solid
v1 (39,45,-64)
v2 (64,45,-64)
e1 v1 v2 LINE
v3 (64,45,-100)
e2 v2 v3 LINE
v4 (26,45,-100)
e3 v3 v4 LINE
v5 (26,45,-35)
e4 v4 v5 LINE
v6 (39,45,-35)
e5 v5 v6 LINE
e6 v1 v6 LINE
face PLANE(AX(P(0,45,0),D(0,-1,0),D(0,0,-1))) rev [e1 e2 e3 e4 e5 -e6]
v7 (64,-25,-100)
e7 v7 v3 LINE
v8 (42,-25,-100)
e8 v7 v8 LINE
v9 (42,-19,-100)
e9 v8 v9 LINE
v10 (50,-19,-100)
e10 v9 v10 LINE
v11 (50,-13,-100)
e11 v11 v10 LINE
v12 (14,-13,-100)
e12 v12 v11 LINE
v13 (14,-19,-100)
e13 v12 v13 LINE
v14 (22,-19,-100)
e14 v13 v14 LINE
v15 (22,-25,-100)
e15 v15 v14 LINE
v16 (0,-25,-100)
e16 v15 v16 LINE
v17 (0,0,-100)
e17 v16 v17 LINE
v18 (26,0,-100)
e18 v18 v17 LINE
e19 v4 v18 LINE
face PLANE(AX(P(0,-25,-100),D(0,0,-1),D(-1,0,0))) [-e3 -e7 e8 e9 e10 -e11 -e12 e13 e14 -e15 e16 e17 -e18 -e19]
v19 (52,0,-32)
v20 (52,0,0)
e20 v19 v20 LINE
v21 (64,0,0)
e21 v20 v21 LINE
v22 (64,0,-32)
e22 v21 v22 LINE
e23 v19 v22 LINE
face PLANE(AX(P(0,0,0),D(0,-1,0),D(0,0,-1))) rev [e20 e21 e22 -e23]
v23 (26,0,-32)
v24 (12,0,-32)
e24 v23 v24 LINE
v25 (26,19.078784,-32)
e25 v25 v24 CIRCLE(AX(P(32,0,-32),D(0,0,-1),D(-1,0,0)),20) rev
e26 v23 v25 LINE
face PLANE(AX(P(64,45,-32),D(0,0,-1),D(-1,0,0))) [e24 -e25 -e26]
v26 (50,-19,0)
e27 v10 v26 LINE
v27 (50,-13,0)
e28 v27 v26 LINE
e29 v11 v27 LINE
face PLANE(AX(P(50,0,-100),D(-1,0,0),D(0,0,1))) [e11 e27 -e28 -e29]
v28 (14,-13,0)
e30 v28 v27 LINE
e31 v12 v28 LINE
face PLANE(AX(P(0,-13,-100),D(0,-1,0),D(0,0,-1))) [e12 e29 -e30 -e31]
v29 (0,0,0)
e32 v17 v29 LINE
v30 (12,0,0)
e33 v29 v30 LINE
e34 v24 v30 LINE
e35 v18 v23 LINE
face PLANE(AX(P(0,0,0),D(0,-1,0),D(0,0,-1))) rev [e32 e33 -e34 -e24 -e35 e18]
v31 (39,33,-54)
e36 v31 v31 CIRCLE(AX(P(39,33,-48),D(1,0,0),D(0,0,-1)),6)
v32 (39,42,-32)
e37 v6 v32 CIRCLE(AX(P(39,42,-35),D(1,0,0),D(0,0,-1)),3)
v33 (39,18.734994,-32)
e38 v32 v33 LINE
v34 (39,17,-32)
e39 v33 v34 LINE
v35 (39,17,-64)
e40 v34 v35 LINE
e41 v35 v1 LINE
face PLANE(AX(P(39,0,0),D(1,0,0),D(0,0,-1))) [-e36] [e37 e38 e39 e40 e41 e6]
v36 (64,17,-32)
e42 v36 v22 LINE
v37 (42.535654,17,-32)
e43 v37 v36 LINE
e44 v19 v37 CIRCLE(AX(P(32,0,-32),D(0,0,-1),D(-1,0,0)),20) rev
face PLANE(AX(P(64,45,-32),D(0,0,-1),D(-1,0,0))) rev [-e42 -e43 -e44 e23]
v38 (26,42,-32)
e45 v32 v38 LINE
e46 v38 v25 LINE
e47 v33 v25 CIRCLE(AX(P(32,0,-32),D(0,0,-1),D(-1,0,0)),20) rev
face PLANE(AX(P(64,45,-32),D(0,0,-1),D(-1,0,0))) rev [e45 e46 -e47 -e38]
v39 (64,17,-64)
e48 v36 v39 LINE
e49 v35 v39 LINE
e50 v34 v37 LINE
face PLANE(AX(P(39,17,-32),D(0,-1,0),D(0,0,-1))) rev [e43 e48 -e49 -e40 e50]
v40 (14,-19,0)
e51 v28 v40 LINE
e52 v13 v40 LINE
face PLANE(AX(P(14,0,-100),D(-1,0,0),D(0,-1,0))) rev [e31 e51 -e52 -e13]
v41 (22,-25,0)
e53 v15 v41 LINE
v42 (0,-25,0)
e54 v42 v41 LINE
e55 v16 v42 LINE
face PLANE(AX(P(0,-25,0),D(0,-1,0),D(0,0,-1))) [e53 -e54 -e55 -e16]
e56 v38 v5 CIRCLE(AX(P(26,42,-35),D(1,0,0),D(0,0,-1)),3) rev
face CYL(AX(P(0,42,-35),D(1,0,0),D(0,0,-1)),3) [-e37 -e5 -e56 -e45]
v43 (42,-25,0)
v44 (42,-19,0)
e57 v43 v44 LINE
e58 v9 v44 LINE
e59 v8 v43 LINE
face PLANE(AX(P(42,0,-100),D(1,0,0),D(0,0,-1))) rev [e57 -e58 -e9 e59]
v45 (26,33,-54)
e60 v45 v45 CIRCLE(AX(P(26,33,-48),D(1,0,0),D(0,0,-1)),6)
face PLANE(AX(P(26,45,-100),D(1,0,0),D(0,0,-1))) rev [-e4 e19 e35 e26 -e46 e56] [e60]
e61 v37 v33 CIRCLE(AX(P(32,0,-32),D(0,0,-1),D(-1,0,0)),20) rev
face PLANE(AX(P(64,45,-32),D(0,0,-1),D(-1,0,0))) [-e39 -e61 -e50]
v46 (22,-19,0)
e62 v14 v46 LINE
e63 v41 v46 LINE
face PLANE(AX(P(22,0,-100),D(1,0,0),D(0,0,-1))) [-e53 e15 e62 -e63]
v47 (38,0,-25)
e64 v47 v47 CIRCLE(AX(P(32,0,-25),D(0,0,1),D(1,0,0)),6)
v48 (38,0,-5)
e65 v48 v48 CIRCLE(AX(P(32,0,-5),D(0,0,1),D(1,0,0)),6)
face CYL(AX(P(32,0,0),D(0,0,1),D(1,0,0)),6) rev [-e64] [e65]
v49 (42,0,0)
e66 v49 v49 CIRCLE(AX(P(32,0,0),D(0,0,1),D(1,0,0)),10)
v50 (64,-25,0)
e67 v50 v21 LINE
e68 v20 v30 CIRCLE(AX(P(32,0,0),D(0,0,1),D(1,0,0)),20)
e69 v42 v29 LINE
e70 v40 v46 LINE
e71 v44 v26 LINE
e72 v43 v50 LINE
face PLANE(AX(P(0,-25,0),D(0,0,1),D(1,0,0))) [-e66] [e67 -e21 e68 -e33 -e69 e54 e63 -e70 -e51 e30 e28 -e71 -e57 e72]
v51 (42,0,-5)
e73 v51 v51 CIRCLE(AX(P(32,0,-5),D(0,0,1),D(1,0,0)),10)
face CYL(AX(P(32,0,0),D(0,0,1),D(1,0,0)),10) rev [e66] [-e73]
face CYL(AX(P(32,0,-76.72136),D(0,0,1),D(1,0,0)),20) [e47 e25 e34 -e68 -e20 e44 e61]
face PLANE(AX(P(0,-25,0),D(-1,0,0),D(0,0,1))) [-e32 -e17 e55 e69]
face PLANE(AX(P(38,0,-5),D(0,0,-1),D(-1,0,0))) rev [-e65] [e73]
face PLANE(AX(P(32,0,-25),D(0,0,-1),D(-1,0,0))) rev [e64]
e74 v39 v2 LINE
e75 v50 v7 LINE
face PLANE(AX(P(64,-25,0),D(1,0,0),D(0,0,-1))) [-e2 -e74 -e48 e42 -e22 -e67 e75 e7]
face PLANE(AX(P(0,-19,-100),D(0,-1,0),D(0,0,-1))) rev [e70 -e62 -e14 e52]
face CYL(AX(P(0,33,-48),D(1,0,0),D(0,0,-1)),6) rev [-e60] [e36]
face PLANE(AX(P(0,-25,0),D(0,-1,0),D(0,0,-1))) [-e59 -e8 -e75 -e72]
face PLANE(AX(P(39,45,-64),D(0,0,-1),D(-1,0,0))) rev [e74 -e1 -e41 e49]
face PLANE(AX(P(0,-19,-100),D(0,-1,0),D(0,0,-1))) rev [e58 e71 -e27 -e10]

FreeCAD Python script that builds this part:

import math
import FreeCAD as App
import Part
import Sketcher


def edges_at(feature, points):
    """Names of the edges that pass closest to the given points."""
    edges = feature.Shape.Edges
    near = lambda p: min(range(len(edges)), key=lambda i: edges[i].distToShape(Part.Vertex(*p))[0])
    return sorted({f"Edge{near(p) + 1}" for p in points})

doc = App.newDocument("Part")
body = doc.addObject("PartDesign::Body", "Body")

sketch1 = body.newObject("Sketcher::SketchObject", "Sketch")
sketch1.AttachmentSupport = (doc.getObject("XZ_Plane"), [""])
sketch1.MapMode = "FlatFace"
sketch1.addGeometry([
    Part.LineSegment(App.Vector(0, -100, 0), App.Vector(0, 0, 0)),
    Part.LineSegment(App.Vector(0, 0, 0), App.Vector(64, 0, 0)),
    Part.LineSegment(App.Vector(64, 0, 0), App.Vector(64, -100, 0)),
    Part.LineSegment(App.Vector(64, -100, 0), App.Vector(0, -100, 0)),
], False)
sketch1.addConstraint([
    Sketcher.Constraint("Coincident", 0, 2, 1, 1),
    Sketcher.Constraint("Coincident", 1, 2, 2, 1),
    Sketcher.Constraint("Coincident", 2, 2, 3, 1),
    Sketcher.Constraint("Coincident", 3, 2, 0, 1),
    Sketcher.Constraint("Vertical", 0),
    Sketcher.Constraint("Horizontal", 1),
    Sketcher.Constraint("Vertical", 2),
    Sketcher.Constraint("Horizontal", 3),
    Sketcher.Constraint("Coincident", 0, 2, -1, 1),
    Sketcher.Constraint("DistanceX", 1, 1, 1, 2, 64.0),
    Sketcher.Constraint("DistanceY", 0, 1, 0, 2, 100.0),
])
pad1 = body.newObject("PartDesign::Pad", "Pad")
pad1.Profile = sketch1
pad1.Length = 25

sketch2 = body.newObject("Sketcher::SketchObject", "Sketch001")
sketch2.AttachmentSupport = (doc.getObject("XZ_Plane"), [""])
sketch2.MapMode = "FlatFace"
sketch2.addGeometry([
    Part.LineSegment(App.Vector(26, -100, 0), App.Vector(26, -32, 0)),
    Part.LineSegment(App.Vector(26, -32, 0), App.Vector(64, -32, 0)),
    Part.LineSegment(App.Vector(64, -32, 0), App.Vector(64, -100, 0)),
    Part.LineSegment(App.Vector(64, -100, 0), App.Vector(26, -100, 0)),
], False)
sketch2.addConstraint([
    Sketcher.Constraint("Coincident", 0, 2, 1, 1),
    Sketcher.Constraint("Coincident", 1, 2, 2, 1),
    Sketcher.Constraint("Coincident", 2, 2, 3, 1),
    Sketcher.Constraint("Coincident", 3, 2, 0, 1),
    Sketcher.Constraint("Vertical", 0),
    Sketcher.Constraint("Horizontal", 1),
    Sketcher.Constraint("Vertical", 2),
    Sketcher.Constraint("Horizontal", 3),
    Sketcher.Constraint("DistanceX", 1, 1, 1, 2, 38.0),
    Sketcher.Constraint("DistanceY", 0, 1, 0, 2, 68.0),
    Sketcher.Constraint("DistanceX", -1, 1, 0, 2, 26.0),
    Sketcher.Constraint("DistanceY", 0, 2, -1, 1, 32.0),
])
pad2 = body.newObject("PartDesign::Pad", "Pad001")
pad2.Profile = sketch2
pad2.Length = 45
pad2.Reversed = True

sketch3 = body.newObject("Sketcher::SketchObject", "Sketch002")
sketch3.AttachmentSupport = (doc.getObject("YZ_Plane"), [""])
sketch3.MapMode = "FlatFace"
sketch3.AttachmentOffset = App.Placement(App.Vector(0, 0, 64), App.Rotation())
sketch3.addGeometry([
    Part.LineSegment(App.Vector(45, -32, 0), App.Vector(17, -32, 0)),
    Part.LineSegment(App.Vector(17, -32, 0), App.Vector(17, -64, 0)),
    Part.LineSegment(App.Vector(17, -64, 0), App.Vector(45, -64, 0)),
    Part.LineSegment(App.Vector(45, -64, 0), App.Vector(45, -32, 0)),
], False)
sketch3.addConstraint([
    Sketcher.Constraint("Coincident", 0, 2, 1, 1),
    Sketcher.Constraint("Coincident", 1, 2, 2, 1),
    Sketcher.Constraint("Coincident", 2, 2, 3, 1),
    Sketcher.Constraint("Coincident", 3, 2, 0, 1),
    Sketcher.Constraint("Horizontal", 0),
    Sketcher.Constraint("Vertical", 1),
    Sketcher.Constraint("Horizontal", 2),
    Sketcher.Constraint("Vertical", 3),
    Sketcher.Constraint("DistanceX", 0, 2, 0, 1, 28.0),
    Sketcher.Constraint("DistanceY", 1, 2, 1, 1, 32.0),
    Sketcher.Constraint("DistanceX", -1, 1, 0, 2, 17.0),
    Sketcher.Constraint("DistanceY", 0, 2, -1, 1, 32.0),
])
pocket1 = body.newObject("PartDesign::Pocket", "Pocket")
pocket1.Profile = sketch3
pocket1.Length = 25

sketch4 = body.newObject("Sketcher::SketchObject", "Sketch003")
sketch4.AttachmentSupport = (doc.getObject("XY_Plane"), [""])
sketch4.MapMode = "FlatFace"
sketch4.addGeometry([
    Part.ArcOfCircle(Part.Circle(App.Vector(32, 0, 0), App.Vector(0, 0, 1), 20), math.radians(0), math.radians(180)),
    Part.LineSegment(App.Vector(12, 0, 0), App.Vector(52, 0, 0)),
], False)
sketch4.addConstraint([
    Sketcher.Constraint("Coincident", 0, 1, 1, 2),
    Sketcher.Constraint("Coincident", 1, 1, 0, 2),
    Sketcher.Constraint("Horizontal", 1),
    Sketcher.Constraint("PointOnObject", 0, 3, -1),
    Sketcher.Constraint("PointOnObject", 0, 1, -1),
    Sketcher.Constraint("Radius", 0, 20.0),
    Sketcher.Constraint("DistanceX", -1, 1, 0, 3, 32.0),
])
pad3 = body.newObject("PartDesign::Pad", "Pad002")
pad3.Profile = sketch4
pad3.Length = 32
pad3.Reversed = True

sketch5 = body.newObject("Sketcher::SketchObject", "Sketch004")
sketch5.AttachmentSupport = (doc.getObject("XY_Plane"), [""])
sketch5.MapMode = "FlatFace"
sketch5.addGeometry([
    Part.LineSegment(App.Vector(22, -19, 0), App.Vector(22, -25, 0)),
    Part.LineSegment(App.Vector(22, -25, 0), App.Vector(42, -25, 0)),
    Part.LineSegment(App.Vector(42, -25, 0), App.Vector(42, -19, 0)),
    Part.LineSegment(App.Vector(42, -19, 0), App.Vector(50, -19, 0)),
    Part.LineSegment(App.Vector(50, -19, 0), App.Vector(50, -13, 0)),
    Part.LineSegment(App.Vector(50, -13, 0), App.Vector(14, -13, 0)),
    Part.LineSegment(App.Vector(14, -13, 0), App.Vector(14, -19, 0)),
    Part.LineSegment(App.Vector(14, -19, 0), App.Vector(22, -19, 0)),
], False)
sketch5.addConstraint([
    Sketcher.Constraint("Coincident", 0, 2, 1, 1),
    Sketcher.Constraint("Coincident", 1, 2, 2, 1),
    Sketcher.Constraint("Coincident", 2, 2, 3, 1),
    Sketcher.Constraint("Coincident", 3, 2, 4, 1),
    Sketcher.Constraint("Coincident", 4, 2, 5, 1),
    Sketcher.Constraint("Coincident", 5, 2, 6, 1),
    Sketcher.Constraint("Coincident", 6, 2, 7, 1),
    Sketcher.Constraint("Coincident", 7, 2, 0, 1),
    Sketcher.Constraint("Vertical", 0),
    Sketcher.Constraint("Horizontal", 1),
    Sketcher.Constraint("Vertical", 2),
    Sketcher.Constraint("Horizontal", 3),
    Sketcher.Constraint("Vertical", 4),
    Sketcher.Constraint("Horizontal", 5),
    Sketcher.Constraint("Vertical", 6),
    Sketcher.Constraint("Horizontal", 7),
    Sketcher.Constraint("Horizontal", 3, 2, 6, 2),
    Sketcher.Constraint("Equal", 3, 7),
    Sketcher.Constraint("Equal", 2, 4),
    Sketcher.Constraint("DistanceX", 1, 1, 1, 2, 20.0),
    Sketcher.Constraint("DistanceX", 3, 1, 3, 2, 8.0),
    Sketcher.Constraint("DistanceY", 0, 2, 0, 1, 6.0),
    Sketcher.Constraint("DistanceX", -1, 1, 0, 2, 22.0),
    Sketcher.Constraint("DistanceY", 0, 2, -1, 1, 25.0),
])
pocket2 = body.newObject("PartDesign::Pocket", "Pocket001")
pocket2.Profile = sketch5
pocket2.Type = "ThroughAll"
doc.recompute()

fillet = body.newObject("PartDesign::Fillet", "Fillet")
fillet.Base = (pocket2, edges_at(pocket2, [(32.5, 45, -32)]))
fillet.Radius = 3

sketch6 = body.newObject("Sketcher::SketchObject", "Sketch005")
sketch6.AttachmentSupport = (doc.getObject("XY_Plane"), [""])
sketch6.MapMode = "FlatFace"
sketch6.addGeometry(Part.Circle(App.Vector(32, 0, 0), App.Vector(0, 0, 1), 6), False)
sketch6.addConstraint([
    Sketcher.Constraint("PointOnObject", 0, 3, -1),
    Sketcher.Constraint("Diameter", 0, 12.0),
    Sketcher.Constraint("DistanceX", -1, 1, 0, 3, 32.0),
])
doc.recompute()
hole = body.newObject("PartDesign::Hole", "Hole")
hole.Profile = sketch6
hole.ThreadType = "None"
hole.Diameter = 12
hole.DepthType = "Dimension"
hole.Depth = 25
hole.DrillPoint = "Flat"
hole.HoleCutType = "Counterbore"
hole.HoleCutDiameter = 20
hole.HoleCutDepth = 5

sketch7 = body.newObject("Sketcher::SketchObject", "Sketch006")
sketch7.AttachmentSupport = (doc.getObject("YZ_Plane"), [""])
sketch7.MapMode = "FlatFace"
sketch7.AttachmentOffset = App.Placement(App.Vector(0, 0, 39), App.Rotation())
sketch7.addGeometry(Part.Circle(App.Vector(33, -48, 0), App.Vector(0, 0, 1), 6), False)
sketch7.addConstraint([
    Sketcher.Constraint("Diameter", 0, 12.0),
    Sketcher.Constraint("DistanceX", -1, 1, 0, 3, 33.0),
    Sketcher.Constraint("DistanceY", 0, 3, -1, 1, 48.0),
])
pocket3 = body.newObject("PartDesign::Pocket", "Pocket002")
pocket3.Profile = sketch7
pocket3.Type = "ThroughAll"

doc.recompute()
